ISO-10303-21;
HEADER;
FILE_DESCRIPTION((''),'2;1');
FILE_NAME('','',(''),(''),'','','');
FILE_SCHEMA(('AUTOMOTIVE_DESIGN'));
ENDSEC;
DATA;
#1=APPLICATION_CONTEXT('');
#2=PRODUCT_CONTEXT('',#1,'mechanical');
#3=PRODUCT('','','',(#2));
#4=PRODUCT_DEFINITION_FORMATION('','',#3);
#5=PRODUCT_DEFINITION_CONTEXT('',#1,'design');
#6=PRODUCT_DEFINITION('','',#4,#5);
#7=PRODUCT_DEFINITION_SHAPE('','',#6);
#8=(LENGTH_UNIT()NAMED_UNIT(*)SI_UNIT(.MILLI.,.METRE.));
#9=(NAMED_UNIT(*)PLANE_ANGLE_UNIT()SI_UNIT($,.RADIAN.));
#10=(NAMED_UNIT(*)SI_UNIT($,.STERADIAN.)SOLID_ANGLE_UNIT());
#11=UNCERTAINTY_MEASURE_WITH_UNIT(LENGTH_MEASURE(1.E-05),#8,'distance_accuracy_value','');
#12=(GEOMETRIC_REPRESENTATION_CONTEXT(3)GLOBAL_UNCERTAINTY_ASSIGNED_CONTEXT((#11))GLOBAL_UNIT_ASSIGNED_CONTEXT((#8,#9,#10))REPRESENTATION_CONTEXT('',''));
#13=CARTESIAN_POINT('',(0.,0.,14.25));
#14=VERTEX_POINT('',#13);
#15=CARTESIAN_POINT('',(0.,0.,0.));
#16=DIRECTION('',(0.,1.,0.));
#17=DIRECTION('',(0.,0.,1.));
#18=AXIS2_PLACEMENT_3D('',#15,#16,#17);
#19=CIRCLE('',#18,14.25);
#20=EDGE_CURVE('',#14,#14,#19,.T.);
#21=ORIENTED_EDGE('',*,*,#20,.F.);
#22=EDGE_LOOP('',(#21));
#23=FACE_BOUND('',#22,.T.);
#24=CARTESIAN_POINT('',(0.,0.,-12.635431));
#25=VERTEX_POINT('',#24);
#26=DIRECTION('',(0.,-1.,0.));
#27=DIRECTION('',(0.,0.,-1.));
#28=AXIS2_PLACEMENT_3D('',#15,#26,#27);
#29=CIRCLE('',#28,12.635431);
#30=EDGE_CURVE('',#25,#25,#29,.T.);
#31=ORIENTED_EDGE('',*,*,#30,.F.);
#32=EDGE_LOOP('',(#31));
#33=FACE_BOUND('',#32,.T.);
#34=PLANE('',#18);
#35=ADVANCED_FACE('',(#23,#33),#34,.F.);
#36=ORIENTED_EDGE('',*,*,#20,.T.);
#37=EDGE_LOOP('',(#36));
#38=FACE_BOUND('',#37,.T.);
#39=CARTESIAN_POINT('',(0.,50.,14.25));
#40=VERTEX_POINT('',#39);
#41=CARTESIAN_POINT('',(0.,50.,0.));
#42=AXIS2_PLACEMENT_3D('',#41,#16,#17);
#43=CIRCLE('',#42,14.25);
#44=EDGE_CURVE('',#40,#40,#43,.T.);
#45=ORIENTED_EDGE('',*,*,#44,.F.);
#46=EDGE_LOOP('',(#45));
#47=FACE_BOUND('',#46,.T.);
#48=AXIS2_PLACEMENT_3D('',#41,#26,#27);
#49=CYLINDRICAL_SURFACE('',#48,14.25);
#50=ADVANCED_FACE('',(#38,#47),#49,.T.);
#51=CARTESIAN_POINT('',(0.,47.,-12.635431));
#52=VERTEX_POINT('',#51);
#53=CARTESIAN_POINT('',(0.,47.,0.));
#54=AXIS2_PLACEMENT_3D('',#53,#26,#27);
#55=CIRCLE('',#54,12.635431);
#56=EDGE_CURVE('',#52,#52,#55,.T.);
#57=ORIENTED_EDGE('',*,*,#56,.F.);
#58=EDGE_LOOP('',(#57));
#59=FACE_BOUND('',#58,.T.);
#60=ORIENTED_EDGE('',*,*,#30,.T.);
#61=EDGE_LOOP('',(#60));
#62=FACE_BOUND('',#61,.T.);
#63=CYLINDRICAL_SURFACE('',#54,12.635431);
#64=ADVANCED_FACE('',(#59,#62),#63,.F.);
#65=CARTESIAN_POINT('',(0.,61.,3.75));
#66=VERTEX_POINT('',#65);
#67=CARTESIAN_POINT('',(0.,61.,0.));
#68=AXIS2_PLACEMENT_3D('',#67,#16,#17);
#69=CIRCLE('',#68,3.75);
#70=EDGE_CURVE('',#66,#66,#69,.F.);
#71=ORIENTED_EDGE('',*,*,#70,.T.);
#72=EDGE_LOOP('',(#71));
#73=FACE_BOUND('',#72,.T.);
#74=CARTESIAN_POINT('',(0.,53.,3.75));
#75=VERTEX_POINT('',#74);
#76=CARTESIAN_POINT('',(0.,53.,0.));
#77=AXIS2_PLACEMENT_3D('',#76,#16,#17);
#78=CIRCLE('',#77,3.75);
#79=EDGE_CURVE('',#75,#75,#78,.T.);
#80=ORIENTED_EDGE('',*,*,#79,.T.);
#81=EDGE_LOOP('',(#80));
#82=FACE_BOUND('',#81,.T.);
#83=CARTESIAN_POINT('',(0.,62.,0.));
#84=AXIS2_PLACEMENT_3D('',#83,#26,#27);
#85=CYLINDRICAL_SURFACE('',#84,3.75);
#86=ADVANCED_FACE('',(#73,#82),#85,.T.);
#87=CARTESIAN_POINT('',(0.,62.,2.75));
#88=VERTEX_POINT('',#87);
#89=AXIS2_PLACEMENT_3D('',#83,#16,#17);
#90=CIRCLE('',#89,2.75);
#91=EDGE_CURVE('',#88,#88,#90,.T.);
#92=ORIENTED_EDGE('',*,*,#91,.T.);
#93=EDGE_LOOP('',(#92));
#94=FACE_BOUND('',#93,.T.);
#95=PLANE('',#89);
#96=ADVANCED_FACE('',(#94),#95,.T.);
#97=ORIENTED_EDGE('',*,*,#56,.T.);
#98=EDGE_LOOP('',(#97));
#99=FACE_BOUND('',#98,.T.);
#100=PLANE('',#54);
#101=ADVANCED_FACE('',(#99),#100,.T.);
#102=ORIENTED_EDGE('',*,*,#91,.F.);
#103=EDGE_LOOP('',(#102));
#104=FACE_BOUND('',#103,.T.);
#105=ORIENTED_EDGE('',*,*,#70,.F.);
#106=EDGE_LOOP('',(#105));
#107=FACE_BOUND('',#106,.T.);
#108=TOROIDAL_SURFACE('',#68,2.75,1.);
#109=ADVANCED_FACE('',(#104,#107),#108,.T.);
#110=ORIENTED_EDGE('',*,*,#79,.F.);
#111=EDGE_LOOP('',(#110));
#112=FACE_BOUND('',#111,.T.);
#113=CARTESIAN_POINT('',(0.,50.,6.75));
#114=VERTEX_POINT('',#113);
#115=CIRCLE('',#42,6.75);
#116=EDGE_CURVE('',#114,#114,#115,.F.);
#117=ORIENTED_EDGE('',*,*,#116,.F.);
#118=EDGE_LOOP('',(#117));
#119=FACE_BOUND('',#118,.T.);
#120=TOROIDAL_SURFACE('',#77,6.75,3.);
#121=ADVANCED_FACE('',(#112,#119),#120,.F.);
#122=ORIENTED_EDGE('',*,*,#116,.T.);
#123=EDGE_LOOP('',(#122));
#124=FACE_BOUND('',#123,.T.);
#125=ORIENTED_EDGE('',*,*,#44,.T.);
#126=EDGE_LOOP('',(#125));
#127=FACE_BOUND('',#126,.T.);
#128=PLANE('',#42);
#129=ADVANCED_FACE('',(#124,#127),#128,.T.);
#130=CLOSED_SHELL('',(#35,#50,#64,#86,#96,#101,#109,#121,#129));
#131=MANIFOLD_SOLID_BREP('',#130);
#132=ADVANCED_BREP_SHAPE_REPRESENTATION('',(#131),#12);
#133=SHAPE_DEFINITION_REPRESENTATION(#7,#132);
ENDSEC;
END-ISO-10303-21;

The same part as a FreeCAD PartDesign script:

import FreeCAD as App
import Part
import Sketcher

V = App.Vector


def edges_at(feature, points):
    """Names of the edges that pass closest to the given points."""
    edges = feature.Shape.Edges
    near = lambda p: min(range(len(edges)), key=lambda i: edges[i].distToShape(Part.Vertex(*p))[0])
    return sorted({f"Edge{near(p) + 1}" for p in points})

doc = App.newDocument("Part")
body = doc.addObject("PartDesign::Body", "Body")

# Sketch on XZ plane
sketch1 = body.newObject("Sketcher::SketchObject", "Sketch")
sketch1.AttachmentSupport = (doc.getObject("XZ_Plane"), [""])
sketch1.MapMode = "FlatFace"
sketch1.addGeometry(Part.Circle(V(0, 0, 0), V(0, 0, 1), 14), False)
sketch1.addConstraint([
    Sketcher.Constraint("Coincident", 0, 3, -1, 1),
    Sketcher.Constraint("Diameter", 0, 28.5),
])
pad1 = body.newObject("PartDesign::Pad", "Pad")
pad1.Profile = sketch1
pad1.Length = 50
pad1.Reversed = True

# Sketch on XZ plane
sketch2 = body.newObject("Sketcher::SketchObject", "Sketch001")
sketch2.AttachmentSupport = (doc.getObject("XZ_Plane"), [""])
sketch2.MapMode = "FlatFace"
sketch2.AttachmentOffset = App.Placement(V(0, 0, -50), App.Rotation())
sketch2.addGeometry(Part.Circle(V(0, 0, 0), V(0, 0, 1), 3.8), False)
sketch2.addConstraint([
    Sketcher.Constraint("Coincident", 0, 3, -1, 1),
    Sketcher.Constraint("Diameter", 0, 7.5),
])
pad2 = body.newObject("PartDesign::Pad", "Pad001")
pad2.Profile = sketch2
pad2.Length = 12
pad2.Reversed = True
doc.recompute()

fillet = body.newObject("PartDesign::Fillet", "Fillet")
fillet.Base = (pad2, edges_at(pad2, [(0, 50, -3.75)]))
fillet.Radius = 3
doc.recompute()

fillet2 = body.newObject("PartDesign::Fillet", "Fillet001")
fillet2.Base = (fillet, edges_at(fillet, [(0, 62, -3.75)]))
fillet2.Radius = 1

# Sketch on XZ plane
sketch3 = body.newObject("Sketcher::SketchObject", "Sketch002")
sketch3.AttachmentSupport = (doc.getObject("XZ_Plane"), [""])
sketch3.MapMode = "FlatFace"
sketch3.addGeometry(Part.Circle(V(0, 0, 0), V(0, 0, 1), 13), False)
sketch3.addConstraint([
    Sketcher.Constraint("Coincident", 0, 3, -1, 1),
    Sketcher.Constraint("Diameter", 0, 25.270862),
])
pocket1 = body.newObject("PartDesign::Pocket", "Pocket")
pocket1.Profile = sketch3
pocket1.Length = 47

doc.recompute()
